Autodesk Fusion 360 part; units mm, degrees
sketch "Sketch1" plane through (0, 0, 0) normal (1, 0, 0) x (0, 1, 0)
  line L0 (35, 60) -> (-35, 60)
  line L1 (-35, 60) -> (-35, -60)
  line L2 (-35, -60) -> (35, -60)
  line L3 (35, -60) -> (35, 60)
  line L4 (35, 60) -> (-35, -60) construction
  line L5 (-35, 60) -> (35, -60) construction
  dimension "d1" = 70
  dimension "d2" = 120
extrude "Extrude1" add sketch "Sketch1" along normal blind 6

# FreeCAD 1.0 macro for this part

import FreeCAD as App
import Part
import Sketcher
from FreeCAD import Vector
Q = App.Units.Quantity


def add_polygon(sketch, points):
    """Adds a closed chain of lines whose ends are joined by coincident constraints."""
    first, n = sketch.GeometryCount, len(points)
    for a, b in zip(points, points[1:] + points[:1]):
        sketch.addGeometry(Part.LineSegment(App.Vector(*a, 0), App.Vector(*b, 0)), False)
    for i in range(n):
        sketch.addConstraint(Sketcher.Constraint("Coincident", first + i, 2, first + (i + 1) % n, 1))

doc = App.newDocument("Part")
body = doc.addObject("PartDesign::Body", "Body")

sketch1 = body.newObject("Sketcher::SketchObject", "Sketch")
sketch1.AttachmentSupport = (doc.getObject("YZ_Plane"), [""])
sketch1.MapMode = "FlatFace"
add_polygon(sketch1, [(35, -60), (35, 60), (-35, 60), (-35, -60)])
sketch1.addConstraint(Sketcher.Constraint("Vertical", 0))
sketch1.addConstraint(Sketcher.Constraint("Horizontal", 1))
sketch1.addConstraint(Sketcher.Constraint("Vertical", 2))
sketch1.addConstraint(Sketcher.Constraint("Horizontal", 3))
sketch1.addConstraint(Sketcher.Constraint("Symmetric", 0, 2, 2, 2, -1, 1))
sketch1.addConstraint(Sketcher.Constraint("DistanceX", 1, 2, 1, 1, Q("70 mm")))
sketch1.addConstraint(Sketcher.Constraint("DistanceY", 0, 1, 0, 2, Q("120 mm")))
pad1 = body.newObject("PartDesign::Pad", "Pad")
pad1.Profile = sketch1
pad1.Length = 6

doc.recompute()
